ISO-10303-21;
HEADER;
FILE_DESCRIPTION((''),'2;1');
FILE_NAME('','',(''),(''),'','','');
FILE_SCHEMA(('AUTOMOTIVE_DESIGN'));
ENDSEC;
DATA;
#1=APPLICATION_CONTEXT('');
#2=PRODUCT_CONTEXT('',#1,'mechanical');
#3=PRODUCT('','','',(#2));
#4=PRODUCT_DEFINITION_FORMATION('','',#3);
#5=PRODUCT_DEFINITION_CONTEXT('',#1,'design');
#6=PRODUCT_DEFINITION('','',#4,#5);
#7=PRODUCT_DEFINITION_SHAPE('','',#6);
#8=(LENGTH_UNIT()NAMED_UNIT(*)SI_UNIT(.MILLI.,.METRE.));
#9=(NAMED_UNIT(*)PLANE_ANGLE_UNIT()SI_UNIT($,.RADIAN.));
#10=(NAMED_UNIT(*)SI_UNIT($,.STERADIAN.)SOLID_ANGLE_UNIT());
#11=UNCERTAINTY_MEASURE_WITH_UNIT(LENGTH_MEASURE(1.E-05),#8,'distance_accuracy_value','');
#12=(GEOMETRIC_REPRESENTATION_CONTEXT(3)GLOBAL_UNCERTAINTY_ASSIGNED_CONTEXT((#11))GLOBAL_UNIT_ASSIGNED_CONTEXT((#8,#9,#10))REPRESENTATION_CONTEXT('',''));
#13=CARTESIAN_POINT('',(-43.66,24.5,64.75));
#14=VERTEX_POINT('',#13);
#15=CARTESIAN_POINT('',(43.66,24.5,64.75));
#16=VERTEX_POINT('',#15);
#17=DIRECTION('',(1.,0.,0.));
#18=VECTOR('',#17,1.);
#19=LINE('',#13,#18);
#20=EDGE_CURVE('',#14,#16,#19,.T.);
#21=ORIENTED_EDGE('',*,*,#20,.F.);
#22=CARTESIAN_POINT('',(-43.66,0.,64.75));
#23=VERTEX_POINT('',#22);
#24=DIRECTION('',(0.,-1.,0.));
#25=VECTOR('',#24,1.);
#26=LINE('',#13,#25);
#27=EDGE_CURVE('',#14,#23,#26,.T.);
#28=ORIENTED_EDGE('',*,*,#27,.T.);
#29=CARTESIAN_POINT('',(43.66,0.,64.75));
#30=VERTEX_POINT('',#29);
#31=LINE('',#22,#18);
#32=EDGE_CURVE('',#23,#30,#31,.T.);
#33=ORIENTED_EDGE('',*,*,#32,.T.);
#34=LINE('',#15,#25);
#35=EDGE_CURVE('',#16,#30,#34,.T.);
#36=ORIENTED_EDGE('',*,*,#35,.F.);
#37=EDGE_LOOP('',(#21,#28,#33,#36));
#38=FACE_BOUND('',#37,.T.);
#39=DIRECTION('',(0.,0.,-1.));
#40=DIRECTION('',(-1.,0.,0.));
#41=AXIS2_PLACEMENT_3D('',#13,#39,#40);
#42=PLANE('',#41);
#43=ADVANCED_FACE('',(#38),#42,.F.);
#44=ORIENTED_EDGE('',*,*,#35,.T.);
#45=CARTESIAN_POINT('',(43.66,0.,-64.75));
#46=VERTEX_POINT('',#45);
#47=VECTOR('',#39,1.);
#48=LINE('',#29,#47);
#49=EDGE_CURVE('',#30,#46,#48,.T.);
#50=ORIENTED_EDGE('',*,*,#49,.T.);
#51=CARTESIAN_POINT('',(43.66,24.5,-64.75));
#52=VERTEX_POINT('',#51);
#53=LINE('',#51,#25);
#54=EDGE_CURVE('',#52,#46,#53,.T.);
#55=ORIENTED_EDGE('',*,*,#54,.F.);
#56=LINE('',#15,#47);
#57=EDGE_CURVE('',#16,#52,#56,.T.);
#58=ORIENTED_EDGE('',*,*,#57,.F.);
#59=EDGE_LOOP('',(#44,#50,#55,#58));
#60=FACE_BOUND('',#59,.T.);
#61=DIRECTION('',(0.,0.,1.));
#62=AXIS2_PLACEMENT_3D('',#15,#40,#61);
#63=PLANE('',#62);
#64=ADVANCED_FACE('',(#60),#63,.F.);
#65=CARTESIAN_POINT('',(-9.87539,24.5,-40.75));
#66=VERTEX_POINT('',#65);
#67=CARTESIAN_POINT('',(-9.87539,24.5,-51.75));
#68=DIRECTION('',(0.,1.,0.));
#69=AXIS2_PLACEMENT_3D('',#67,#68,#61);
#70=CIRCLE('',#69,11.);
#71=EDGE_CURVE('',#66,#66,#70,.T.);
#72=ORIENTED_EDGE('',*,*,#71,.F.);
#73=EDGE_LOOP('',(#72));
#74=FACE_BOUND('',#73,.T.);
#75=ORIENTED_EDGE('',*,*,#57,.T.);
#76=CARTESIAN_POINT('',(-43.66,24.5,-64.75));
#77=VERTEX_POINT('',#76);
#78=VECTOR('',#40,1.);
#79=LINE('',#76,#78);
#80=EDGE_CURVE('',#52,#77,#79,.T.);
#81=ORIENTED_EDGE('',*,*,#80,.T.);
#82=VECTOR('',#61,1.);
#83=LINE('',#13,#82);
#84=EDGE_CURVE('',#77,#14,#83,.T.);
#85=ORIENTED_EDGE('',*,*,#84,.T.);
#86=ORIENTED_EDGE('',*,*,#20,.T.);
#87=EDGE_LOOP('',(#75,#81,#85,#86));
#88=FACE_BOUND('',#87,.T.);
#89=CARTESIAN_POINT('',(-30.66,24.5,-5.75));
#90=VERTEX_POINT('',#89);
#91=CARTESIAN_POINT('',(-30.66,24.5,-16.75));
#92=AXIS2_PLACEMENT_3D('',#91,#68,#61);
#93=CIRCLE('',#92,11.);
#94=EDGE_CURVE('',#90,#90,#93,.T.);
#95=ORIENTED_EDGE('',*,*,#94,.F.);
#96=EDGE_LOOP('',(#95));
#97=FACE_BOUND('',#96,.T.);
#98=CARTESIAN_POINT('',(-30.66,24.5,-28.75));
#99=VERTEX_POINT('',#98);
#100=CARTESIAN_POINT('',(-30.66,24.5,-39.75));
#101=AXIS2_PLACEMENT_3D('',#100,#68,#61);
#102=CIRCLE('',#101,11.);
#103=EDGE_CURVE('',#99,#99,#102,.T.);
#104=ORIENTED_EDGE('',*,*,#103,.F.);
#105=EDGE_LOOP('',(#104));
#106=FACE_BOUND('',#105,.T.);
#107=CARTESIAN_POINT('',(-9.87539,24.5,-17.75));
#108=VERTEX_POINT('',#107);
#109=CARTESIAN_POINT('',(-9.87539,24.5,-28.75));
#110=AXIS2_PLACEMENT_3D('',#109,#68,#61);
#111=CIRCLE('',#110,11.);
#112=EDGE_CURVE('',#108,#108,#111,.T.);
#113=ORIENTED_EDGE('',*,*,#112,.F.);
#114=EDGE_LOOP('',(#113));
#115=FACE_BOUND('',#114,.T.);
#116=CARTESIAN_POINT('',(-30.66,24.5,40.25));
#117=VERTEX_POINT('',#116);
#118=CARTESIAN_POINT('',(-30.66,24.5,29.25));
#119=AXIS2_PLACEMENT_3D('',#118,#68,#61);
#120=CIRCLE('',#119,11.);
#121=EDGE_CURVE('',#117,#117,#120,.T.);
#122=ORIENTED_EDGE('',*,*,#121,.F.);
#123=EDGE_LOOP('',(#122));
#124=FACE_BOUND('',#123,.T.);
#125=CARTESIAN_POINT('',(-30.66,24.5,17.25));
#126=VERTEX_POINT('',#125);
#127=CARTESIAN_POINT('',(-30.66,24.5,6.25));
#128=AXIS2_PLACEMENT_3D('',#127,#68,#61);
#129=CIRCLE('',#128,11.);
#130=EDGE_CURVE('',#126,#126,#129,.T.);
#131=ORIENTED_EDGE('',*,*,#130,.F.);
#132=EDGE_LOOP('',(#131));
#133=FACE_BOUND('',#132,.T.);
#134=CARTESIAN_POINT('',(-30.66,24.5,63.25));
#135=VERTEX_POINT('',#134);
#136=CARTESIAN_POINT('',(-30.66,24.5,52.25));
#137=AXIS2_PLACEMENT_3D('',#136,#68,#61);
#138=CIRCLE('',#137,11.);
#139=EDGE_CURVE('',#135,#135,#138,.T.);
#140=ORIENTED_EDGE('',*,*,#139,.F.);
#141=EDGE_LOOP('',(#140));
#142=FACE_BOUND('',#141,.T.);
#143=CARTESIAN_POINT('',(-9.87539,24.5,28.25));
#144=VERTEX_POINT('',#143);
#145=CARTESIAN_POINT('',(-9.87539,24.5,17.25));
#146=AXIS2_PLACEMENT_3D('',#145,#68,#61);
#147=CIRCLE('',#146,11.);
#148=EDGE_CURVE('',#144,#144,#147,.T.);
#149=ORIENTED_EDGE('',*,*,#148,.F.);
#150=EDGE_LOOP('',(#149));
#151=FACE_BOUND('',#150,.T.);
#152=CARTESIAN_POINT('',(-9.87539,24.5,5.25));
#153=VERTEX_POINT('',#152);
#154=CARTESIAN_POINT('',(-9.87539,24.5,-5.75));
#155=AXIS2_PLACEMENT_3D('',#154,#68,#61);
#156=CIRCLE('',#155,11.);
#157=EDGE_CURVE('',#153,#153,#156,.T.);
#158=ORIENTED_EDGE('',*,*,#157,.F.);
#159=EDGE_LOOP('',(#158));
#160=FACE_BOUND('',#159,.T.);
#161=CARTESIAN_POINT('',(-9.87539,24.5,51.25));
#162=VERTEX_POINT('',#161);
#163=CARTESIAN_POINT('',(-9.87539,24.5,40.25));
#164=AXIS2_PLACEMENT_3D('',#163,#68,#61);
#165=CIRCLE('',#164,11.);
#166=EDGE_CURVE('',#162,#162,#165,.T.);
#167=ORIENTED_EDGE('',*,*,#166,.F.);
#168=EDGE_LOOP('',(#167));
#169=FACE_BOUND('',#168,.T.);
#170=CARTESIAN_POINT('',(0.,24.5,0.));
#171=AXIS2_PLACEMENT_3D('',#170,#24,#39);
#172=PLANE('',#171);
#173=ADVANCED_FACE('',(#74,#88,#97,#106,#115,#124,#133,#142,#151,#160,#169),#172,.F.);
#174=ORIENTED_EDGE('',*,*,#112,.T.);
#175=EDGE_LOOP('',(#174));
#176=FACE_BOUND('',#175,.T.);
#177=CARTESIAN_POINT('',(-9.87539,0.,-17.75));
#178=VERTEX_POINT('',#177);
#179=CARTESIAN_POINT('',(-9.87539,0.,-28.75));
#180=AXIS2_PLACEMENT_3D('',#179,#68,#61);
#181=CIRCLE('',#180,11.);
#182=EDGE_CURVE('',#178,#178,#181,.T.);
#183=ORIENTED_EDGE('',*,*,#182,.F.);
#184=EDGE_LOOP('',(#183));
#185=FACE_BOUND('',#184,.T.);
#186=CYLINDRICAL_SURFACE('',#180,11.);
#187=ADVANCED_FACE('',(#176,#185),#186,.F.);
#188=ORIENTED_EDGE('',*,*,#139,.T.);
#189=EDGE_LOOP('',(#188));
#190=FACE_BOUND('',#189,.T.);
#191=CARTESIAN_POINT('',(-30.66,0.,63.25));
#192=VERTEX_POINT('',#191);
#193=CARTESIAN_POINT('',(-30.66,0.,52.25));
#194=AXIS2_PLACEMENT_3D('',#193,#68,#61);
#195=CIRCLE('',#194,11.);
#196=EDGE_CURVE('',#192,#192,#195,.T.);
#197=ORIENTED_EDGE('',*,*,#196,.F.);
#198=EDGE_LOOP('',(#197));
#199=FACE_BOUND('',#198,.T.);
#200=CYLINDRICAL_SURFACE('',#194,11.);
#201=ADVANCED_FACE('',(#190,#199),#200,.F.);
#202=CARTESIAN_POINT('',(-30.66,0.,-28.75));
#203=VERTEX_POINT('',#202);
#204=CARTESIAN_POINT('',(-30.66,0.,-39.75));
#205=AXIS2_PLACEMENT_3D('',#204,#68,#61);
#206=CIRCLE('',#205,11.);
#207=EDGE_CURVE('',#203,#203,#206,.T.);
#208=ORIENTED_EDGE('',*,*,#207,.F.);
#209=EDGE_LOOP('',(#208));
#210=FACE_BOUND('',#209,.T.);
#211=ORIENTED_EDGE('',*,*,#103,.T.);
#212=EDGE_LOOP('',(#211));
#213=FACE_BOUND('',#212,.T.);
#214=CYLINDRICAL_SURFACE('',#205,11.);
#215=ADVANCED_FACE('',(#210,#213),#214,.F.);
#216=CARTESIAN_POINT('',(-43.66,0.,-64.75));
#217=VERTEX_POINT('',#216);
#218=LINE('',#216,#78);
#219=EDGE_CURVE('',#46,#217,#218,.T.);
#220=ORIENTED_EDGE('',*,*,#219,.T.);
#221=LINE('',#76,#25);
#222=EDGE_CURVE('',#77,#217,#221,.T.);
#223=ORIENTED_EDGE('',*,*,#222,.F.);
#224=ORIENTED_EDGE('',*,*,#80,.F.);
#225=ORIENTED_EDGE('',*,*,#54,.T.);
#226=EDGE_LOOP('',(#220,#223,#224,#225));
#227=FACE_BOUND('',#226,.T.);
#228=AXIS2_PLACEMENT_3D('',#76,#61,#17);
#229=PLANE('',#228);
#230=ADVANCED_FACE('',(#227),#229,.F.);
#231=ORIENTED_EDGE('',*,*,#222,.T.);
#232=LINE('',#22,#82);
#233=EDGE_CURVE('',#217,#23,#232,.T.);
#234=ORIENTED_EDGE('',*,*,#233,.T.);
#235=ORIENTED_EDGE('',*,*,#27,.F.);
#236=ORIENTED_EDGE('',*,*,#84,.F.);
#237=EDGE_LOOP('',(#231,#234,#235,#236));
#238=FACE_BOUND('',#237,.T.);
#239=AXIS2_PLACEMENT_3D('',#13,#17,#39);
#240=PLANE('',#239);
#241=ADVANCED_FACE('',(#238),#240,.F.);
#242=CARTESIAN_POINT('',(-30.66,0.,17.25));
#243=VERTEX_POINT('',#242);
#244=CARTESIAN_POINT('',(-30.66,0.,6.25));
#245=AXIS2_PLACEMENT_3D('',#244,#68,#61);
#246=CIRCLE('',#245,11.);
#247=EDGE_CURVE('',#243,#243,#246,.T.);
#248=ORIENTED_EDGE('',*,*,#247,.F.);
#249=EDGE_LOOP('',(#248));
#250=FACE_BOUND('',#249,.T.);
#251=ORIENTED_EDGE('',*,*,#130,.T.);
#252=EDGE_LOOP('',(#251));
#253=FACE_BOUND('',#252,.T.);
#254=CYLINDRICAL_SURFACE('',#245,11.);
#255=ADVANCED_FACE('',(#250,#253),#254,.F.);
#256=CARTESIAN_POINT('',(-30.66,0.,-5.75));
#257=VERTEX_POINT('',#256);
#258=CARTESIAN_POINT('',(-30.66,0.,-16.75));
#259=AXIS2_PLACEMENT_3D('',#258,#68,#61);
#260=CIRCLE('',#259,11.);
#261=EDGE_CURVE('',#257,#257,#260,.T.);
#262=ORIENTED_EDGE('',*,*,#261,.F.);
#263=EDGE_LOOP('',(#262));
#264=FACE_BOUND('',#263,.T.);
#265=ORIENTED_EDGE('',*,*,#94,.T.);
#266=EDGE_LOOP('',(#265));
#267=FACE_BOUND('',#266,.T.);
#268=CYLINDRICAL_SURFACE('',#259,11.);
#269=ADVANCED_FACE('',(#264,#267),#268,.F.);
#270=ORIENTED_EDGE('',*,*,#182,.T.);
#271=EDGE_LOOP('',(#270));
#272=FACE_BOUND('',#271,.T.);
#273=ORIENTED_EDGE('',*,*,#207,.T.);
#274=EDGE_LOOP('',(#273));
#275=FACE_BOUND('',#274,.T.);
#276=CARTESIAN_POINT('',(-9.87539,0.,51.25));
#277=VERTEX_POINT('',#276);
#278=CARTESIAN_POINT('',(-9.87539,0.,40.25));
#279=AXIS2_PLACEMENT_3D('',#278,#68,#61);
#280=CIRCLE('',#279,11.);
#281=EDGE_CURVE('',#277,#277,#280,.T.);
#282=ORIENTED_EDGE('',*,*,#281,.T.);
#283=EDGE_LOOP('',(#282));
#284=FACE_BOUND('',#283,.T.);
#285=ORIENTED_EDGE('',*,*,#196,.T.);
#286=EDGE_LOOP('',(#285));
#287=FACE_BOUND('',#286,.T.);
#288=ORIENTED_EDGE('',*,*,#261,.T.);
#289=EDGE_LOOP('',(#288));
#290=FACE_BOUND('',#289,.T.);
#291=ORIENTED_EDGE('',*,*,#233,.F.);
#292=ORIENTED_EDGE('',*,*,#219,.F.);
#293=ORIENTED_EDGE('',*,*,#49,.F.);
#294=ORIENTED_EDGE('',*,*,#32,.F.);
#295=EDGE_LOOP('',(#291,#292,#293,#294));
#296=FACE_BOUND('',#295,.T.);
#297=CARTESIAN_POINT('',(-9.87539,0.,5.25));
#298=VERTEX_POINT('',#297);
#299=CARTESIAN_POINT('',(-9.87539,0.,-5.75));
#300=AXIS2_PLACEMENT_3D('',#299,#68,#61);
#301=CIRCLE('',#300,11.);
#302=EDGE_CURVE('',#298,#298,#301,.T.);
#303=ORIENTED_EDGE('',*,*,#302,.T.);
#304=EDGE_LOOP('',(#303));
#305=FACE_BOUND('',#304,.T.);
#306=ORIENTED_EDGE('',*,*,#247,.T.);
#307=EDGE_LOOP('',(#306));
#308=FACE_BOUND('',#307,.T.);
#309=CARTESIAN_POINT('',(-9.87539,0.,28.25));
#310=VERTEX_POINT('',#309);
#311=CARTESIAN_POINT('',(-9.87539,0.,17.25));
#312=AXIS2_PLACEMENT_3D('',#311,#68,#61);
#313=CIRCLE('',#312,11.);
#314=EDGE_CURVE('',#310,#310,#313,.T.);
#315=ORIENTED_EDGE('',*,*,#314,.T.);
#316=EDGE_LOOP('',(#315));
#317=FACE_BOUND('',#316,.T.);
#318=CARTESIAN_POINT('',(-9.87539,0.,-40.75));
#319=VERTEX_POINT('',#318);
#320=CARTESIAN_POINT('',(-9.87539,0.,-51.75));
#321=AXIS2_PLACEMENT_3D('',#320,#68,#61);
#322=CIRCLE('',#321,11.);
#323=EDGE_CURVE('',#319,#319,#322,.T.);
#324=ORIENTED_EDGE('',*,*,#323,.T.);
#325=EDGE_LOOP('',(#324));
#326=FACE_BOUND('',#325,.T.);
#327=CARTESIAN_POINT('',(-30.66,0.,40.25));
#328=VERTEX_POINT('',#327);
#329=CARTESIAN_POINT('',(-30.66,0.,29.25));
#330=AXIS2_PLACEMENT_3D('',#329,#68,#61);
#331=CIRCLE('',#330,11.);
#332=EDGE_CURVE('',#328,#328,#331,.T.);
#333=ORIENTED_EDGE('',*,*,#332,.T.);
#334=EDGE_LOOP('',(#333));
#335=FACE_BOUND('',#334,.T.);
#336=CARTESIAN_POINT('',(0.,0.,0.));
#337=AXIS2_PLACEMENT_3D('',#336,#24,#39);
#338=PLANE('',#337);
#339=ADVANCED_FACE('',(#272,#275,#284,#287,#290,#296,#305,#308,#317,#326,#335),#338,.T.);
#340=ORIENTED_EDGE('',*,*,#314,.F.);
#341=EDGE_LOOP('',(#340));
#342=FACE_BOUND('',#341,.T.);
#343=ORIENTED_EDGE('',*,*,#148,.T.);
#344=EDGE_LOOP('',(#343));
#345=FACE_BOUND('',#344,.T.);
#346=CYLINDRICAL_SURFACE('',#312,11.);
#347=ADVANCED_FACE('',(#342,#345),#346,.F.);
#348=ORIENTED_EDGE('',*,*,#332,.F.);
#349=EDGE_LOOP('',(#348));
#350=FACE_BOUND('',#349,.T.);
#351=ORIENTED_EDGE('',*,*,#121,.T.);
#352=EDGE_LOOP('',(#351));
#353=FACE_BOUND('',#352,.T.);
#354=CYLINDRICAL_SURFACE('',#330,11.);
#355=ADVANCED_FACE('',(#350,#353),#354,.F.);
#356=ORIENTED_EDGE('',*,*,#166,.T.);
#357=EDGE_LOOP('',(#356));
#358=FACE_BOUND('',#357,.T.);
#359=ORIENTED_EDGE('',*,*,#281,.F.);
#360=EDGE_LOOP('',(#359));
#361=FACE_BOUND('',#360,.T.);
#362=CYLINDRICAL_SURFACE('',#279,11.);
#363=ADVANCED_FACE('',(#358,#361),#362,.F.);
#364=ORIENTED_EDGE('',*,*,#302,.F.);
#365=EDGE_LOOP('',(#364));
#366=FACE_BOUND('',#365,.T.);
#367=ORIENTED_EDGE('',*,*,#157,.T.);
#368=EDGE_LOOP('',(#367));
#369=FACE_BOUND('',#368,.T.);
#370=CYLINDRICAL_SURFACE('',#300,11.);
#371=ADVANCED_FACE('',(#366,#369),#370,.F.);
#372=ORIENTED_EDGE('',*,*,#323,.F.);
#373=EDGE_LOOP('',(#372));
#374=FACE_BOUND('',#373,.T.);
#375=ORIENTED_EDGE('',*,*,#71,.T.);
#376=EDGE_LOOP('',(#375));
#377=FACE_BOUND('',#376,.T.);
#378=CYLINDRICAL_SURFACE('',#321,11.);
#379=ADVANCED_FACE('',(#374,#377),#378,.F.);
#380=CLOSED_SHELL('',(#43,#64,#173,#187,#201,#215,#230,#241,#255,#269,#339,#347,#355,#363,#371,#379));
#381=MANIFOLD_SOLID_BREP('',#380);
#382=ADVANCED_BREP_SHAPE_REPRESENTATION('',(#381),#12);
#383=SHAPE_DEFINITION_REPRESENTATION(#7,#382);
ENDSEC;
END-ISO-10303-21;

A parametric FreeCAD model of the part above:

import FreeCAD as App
import Part
import Sketcher

V = App.Vector
Q = App.Units.Quantity


def add_polygon(sketch, points):
    """Adds a closed chain of lines whose ends are joined by coincident constraints."""
    first, n = sketch.GeometryCount, len(points)
    for a, b in zip(points, points[1:] + points[:1]):
        sketch.addGeometry(Part.LineSegment(App.Vector(*a, 0), App.Vector(*b, 0)), False)
    for i in range(n):
        sketch.addConstraint(Sketcher.Constraint("Coincident", first + i, 2, first + (i + 1) % n, 1))

doc = App.newDocument("Part")
body = doc.addObject("PartDesign::Body", "Body")

# Sketch on XZ plane
sketch1 = doc.addObject("Sketcher::SketchObject", "Sketch")
body.addObject(sketch1)
sketch1.AttachmentSupport = (doc.XZ_Plane, [""])
sketch1.MapMode = "FlatFace"
add_polygon(sketch1, [(-44, -65), (-44, 65), (44, 65), (44, -65)])  # lines 0-3
sketch1.addConstraint([
    Sketcher.Constraint("Vertical", 0),
    Sketcher.Constraint("Horizontal", 1),
    Sketcher.Constraint("Vertical", 2),
    Sketcher.Constraint("Horizontal", 3),
    Sketcher.Constraint("Symmetric", 0, 2, 2, 2, -1, 1),
    Sketcher.Constraint("DistanceY", 0, 1, 0, 2, Q("129.5 mm")),
    Sketcher.Constraint("DistanceX", 1, 1, 1, 2, Q("87.32 mm")),
])
pad1 = doc.addObject("PartDesign::Pad", "Pad")
body.addObject(pad1)
pad1.Profile = sketch1
pad1.Length = 24.5
pad1.Reversed = True

# Sketch on XZ plane
sketch2 = doc.addObject("Sketcher::SketchObject", "Sketch001")
body.addObject(sketch2)
sketch2.AttachmentSupport = (doc.XZ_Plane, [""])
sketch2.MapMode = "FlatFace"
sketch2.AttachmentOffset = App.Placement(V(0, 0, -24.5), App.Rotation())
sketch2.addGeometry([
    Part.Circle(V(-31, -40, 0), V(0, 0, 1), 11),
    Part.Circle(V(-10, -52, 0), V(0, 0, 1), 11),
], False)
sketch2.addConstraint([
    Sketcher.Constraint("Equal", 0, 1),
    Sketcher.Constraint("Diameter", 0, Q("22 mm")),
    Sketcher.Constraint("DistanceY", 1, 3, 0, 3, Q("12 mm")),
    Sketcher.Constraint("DistanceX", 0, 3, -1, 1, Q("30.66 mm")),
    Sketcher.Constraint("DistanceY", 0, 3, -1, 1, Q("39.75 mm")),
    Sketcher.Constraint("DistanceX", 1, 3, -1, 1, Q("9.87539 mm")),
])
pocket1 = doc.addObject("PartDesign::Pocket", "Pocket")
body.addObject(pocket1)
pocket1.Profile = sketch2
pocket1.Type = "ThroughAll"
pocket1.Reversed = True
doc.recompute()

linearpattern = doc.addObject("PartDesign::LinearPattern", "LinearPattern")
body.addObject(linearpattern)
linearpattern.Originals = [pocket1]
linearpattern.Direction = (doc.Z_Axis, [""])
linearpattern.Mode = "offset"
linearpattern.Offset = 23
linearpattern.Occurrences = 5
body.Tip = linearpattern

doc.recompute()
